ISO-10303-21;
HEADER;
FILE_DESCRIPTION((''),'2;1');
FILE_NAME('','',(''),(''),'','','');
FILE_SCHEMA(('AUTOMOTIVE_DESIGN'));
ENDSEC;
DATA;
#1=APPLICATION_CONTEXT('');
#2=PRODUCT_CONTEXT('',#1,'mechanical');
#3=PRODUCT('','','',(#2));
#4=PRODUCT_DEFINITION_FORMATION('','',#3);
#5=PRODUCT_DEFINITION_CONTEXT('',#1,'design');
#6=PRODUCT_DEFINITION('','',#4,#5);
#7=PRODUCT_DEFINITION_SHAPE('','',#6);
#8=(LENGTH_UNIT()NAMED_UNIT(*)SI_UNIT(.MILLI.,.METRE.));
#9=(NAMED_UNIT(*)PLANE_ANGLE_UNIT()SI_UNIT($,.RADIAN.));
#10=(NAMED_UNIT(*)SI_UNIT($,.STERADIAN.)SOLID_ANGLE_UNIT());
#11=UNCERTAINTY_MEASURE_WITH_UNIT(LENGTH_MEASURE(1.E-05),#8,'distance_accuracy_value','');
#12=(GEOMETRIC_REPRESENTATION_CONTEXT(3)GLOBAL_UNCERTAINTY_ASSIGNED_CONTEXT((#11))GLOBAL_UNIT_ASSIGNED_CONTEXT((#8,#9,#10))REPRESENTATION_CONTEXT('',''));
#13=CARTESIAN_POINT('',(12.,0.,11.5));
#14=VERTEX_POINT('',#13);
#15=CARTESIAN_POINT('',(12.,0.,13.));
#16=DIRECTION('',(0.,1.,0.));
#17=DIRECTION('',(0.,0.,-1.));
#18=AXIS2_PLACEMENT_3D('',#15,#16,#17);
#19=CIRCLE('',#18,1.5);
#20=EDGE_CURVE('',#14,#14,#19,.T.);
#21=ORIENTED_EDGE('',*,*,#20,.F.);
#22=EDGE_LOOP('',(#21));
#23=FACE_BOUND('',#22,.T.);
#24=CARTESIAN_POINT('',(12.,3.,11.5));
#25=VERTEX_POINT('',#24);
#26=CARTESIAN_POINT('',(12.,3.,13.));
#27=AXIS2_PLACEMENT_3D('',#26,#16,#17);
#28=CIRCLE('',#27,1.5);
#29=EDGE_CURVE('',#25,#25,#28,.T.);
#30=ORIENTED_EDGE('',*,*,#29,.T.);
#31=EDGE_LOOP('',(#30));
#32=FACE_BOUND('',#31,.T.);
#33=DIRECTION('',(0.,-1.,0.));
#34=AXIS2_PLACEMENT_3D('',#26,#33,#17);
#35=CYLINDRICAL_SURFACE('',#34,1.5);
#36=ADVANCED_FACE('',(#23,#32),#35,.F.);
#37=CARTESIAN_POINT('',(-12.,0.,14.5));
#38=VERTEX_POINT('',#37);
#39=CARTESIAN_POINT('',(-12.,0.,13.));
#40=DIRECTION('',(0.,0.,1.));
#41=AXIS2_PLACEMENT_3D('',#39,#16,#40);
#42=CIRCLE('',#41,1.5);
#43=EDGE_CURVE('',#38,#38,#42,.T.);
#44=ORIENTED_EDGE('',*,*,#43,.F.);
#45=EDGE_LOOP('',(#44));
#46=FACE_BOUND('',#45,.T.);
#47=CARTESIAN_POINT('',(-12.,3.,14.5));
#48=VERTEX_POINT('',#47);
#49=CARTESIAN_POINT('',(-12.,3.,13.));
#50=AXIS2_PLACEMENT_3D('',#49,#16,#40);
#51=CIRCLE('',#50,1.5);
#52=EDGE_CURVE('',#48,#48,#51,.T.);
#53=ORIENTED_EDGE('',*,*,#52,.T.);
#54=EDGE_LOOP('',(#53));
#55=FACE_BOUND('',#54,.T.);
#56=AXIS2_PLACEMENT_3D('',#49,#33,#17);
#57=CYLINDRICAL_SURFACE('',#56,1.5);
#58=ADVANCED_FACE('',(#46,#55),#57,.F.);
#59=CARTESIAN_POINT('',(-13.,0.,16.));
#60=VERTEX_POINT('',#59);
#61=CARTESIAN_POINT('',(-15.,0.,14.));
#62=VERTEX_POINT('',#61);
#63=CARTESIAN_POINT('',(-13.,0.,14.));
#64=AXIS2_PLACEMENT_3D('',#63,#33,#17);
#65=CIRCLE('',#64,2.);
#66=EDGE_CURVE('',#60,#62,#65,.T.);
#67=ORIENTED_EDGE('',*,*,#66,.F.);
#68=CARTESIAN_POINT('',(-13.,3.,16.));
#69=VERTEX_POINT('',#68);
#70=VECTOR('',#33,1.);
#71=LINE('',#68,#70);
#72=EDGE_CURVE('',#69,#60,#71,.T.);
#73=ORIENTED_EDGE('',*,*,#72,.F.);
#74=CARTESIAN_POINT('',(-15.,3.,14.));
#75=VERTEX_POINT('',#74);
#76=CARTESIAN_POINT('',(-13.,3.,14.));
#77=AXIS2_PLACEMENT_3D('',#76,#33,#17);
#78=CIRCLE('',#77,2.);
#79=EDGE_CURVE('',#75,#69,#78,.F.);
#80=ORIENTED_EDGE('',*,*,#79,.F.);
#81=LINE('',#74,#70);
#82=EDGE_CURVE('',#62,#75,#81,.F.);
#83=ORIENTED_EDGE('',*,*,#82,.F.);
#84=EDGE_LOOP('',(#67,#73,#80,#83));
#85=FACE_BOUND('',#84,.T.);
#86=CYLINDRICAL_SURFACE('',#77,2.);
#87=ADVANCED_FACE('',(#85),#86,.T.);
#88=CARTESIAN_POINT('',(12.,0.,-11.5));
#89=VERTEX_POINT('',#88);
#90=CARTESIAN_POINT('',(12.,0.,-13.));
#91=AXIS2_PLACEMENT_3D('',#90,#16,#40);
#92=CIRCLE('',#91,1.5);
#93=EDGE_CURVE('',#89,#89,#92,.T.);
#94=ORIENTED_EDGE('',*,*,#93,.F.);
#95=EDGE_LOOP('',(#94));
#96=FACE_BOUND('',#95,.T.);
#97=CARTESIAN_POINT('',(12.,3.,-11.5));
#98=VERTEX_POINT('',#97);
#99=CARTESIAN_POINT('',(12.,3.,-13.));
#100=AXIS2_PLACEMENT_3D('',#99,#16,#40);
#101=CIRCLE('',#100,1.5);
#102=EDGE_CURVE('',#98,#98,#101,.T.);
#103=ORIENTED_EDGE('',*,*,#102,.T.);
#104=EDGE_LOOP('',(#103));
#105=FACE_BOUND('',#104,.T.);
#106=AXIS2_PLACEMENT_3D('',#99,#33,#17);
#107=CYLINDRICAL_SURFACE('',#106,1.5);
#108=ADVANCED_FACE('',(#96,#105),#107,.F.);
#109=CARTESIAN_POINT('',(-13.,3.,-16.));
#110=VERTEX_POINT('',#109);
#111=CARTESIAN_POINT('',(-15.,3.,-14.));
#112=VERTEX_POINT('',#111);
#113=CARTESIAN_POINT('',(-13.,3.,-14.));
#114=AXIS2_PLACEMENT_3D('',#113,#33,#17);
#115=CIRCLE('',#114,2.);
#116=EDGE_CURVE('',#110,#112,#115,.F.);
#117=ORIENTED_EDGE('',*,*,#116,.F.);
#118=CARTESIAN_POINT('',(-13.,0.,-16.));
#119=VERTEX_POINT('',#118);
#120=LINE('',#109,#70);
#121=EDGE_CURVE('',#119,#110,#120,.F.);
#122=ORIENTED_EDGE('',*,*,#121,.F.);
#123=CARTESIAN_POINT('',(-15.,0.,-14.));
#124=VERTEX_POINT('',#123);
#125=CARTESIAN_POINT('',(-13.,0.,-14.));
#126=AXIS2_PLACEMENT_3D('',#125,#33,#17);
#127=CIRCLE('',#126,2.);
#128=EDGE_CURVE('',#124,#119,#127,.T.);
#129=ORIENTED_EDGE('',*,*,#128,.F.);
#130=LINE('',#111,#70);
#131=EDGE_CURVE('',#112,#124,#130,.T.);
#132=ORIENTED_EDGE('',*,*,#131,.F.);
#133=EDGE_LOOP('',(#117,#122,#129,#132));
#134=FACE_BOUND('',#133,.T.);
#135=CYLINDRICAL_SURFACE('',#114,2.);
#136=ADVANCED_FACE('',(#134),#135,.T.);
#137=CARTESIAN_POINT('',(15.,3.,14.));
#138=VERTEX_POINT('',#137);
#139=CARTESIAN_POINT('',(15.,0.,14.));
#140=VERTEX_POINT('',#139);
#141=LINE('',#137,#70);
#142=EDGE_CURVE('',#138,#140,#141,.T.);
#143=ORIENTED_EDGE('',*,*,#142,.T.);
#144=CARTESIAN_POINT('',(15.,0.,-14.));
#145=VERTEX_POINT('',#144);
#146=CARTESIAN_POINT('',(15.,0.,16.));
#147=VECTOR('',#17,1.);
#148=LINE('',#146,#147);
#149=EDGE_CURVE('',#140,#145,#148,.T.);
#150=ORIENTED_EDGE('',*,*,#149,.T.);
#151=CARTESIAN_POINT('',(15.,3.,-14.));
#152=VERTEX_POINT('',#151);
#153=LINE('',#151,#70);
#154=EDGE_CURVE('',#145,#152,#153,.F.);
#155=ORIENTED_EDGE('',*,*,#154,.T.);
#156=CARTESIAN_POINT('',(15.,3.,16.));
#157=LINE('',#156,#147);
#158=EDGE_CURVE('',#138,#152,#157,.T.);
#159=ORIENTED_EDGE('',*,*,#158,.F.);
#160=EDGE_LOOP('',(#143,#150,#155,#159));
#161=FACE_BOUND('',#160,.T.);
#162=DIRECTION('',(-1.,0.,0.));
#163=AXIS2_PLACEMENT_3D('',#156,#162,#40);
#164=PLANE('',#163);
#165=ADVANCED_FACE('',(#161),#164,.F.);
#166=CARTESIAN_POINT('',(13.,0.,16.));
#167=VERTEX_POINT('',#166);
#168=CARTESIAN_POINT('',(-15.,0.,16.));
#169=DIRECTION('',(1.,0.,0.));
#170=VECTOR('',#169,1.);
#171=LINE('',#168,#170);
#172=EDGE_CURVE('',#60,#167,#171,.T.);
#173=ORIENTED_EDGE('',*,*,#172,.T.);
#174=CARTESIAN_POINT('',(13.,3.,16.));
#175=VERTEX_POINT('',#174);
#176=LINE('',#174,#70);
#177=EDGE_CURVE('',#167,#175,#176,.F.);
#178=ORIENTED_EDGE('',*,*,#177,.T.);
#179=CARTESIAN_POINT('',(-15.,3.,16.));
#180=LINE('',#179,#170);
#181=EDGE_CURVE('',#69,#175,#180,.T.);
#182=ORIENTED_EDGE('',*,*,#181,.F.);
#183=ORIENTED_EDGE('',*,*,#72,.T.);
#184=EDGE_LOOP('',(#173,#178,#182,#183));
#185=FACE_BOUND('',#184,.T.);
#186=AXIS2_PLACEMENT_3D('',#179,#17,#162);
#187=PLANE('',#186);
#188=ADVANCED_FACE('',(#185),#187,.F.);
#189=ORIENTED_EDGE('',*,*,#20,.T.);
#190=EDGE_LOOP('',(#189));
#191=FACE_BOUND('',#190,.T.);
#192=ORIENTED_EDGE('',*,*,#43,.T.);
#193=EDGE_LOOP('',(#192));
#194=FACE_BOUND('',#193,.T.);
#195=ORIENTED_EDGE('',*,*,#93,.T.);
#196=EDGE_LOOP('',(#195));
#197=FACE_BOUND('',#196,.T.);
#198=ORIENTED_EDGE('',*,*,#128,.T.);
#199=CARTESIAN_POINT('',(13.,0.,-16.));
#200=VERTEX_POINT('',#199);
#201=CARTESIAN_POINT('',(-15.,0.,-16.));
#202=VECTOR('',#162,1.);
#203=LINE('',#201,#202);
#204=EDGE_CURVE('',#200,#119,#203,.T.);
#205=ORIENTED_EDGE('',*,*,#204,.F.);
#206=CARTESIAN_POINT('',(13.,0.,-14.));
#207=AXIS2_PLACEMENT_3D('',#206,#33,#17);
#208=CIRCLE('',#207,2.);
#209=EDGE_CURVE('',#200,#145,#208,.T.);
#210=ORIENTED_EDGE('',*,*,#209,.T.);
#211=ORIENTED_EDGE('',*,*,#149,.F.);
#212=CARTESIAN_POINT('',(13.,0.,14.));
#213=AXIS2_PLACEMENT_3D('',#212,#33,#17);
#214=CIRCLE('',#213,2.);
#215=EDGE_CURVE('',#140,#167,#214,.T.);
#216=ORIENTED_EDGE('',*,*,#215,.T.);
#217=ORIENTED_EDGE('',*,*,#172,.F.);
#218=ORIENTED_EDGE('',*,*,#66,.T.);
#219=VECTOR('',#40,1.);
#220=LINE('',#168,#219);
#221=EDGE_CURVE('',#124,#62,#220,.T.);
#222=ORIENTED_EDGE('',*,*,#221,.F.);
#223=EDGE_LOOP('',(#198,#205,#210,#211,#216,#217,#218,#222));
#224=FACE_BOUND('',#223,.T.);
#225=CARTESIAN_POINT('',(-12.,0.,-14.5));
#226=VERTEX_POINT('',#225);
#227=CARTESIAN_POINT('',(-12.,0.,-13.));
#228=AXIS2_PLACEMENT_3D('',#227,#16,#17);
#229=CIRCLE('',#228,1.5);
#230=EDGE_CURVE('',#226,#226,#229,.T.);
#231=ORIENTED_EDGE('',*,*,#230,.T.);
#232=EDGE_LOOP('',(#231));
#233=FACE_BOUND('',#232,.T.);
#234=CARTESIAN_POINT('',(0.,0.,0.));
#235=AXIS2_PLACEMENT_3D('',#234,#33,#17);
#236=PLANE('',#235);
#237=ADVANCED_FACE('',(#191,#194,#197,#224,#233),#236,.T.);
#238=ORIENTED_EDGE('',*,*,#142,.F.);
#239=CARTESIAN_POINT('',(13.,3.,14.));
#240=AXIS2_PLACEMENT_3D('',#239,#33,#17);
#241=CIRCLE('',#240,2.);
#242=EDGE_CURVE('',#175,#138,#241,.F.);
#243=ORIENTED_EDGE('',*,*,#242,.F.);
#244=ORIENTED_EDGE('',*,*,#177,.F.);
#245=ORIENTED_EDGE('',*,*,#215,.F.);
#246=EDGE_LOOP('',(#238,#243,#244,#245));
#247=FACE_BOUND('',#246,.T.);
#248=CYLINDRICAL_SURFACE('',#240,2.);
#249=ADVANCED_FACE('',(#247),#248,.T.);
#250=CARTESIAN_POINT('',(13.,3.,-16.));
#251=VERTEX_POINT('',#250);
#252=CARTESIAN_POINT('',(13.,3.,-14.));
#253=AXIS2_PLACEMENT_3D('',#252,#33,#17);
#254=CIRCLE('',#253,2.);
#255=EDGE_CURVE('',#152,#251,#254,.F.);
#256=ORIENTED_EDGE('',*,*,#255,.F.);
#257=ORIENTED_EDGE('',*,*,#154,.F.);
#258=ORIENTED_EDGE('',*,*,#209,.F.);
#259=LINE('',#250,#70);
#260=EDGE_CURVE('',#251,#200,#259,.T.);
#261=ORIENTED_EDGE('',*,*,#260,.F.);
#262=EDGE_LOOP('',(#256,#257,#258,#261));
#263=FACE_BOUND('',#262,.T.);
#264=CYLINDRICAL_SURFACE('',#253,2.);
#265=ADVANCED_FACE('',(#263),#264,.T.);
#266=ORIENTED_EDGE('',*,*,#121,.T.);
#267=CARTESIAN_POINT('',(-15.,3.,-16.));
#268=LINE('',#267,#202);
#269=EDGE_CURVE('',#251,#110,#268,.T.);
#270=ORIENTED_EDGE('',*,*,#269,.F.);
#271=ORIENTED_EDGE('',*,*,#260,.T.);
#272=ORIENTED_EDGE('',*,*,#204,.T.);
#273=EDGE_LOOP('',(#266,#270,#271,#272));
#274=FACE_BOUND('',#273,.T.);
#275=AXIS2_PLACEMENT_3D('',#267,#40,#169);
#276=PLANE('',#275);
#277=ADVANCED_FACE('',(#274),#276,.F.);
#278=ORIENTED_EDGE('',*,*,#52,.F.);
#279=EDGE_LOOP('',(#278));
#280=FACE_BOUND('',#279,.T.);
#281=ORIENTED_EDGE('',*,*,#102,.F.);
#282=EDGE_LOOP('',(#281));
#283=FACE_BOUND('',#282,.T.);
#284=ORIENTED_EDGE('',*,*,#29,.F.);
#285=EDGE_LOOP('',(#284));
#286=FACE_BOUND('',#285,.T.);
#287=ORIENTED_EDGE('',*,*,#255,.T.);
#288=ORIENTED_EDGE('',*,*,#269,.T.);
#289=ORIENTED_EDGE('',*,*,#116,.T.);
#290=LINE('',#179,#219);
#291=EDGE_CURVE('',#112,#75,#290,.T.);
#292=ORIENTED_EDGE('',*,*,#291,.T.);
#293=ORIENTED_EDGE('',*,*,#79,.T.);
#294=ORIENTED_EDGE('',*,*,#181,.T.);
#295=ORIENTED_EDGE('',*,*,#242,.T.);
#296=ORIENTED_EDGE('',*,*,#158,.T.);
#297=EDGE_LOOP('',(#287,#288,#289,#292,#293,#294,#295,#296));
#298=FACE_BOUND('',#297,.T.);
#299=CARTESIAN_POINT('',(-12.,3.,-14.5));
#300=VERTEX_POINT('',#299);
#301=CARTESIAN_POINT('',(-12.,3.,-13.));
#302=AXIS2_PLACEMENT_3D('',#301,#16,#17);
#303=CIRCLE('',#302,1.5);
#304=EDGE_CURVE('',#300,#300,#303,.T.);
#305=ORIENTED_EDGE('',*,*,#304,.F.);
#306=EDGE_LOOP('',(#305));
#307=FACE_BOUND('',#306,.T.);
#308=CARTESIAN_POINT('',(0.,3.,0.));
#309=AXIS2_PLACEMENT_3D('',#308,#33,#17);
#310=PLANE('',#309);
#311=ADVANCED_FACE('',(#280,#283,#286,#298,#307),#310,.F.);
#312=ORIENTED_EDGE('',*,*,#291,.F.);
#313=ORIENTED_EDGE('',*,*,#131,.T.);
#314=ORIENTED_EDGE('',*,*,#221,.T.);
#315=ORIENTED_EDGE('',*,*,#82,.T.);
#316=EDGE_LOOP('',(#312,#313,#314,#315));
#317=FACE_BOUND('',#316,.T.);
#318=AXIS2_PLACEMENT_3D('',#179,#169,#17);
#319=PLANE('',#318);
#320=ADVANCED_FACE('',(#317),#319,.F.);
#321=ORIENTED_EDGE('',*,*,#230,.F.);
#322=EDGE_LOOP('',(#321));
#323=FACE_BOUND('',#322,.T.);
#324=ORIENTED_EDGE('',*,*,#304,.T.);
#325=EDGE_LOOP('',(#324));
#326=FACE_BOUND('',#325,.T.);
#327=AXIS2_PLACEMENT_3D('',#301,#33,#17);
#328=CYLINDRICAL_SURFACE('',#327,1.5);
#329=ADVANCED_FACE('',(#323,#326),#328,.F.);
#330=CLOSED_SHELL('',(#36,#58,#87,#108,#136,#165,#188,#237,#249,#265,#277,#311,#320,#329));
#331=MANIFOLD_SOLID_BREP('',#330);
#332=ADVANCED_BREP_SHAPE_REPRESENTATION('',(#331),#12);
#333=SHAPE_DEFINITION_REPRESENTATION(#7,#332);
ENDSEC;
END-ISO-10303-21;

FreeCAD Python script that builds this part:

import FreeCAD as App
import Part
import Sketcher

V = App.Vector
Q = App.Units.Quantity


def edges_at(feature, points):
    """Names of the edges that pass closest to the given points."""
    edges = feature.Shape.Edges
    near = lambda p: min(range(len(edges)), key=lambda i: edges[i].distToShape(Part.Vertex(*p))[0])
    return sorted({f"Edge{near(p) + 1}" for p in points})

doc = App.newDocument("Part")
params = doc.addObject("Spreadsheet::Sheet", "Params")
for row, (alias, value) in enumerate([
    ("sketch1_diameter", "3 mm"),
    ("sketch1_width", "30 mm"),
    ("sketch1_height", "32 mm"),
    ("pad1_length", "3 mm"),
    ("fillet_radius", "2 mm"),
], start=1):
    params.set(f"A{row}", alias)
    params.set(f"B{row}", "=" + value)
    params.setAlias(f"B{row}", alias)

body = doc.addObject("PartDesign::Body", "Body")

# Sketch on XZ plane
sketch1 = body.newObject("Sketcher::SketchObject", "Sketch")
sketch1.AttachmentSupport = (doc.getObject("XZ_Plane"), [""])
sketch1.MapMode = "FlatFace"
sketch1.addGeometry([
    Part.LineSegment(V(-15, -16, 0), V(-15, 16, 0)),  # 0
    Part.LineSegment(V(-15, 16, 0), V(15, 16, 0)),  # 1
    Part.LineSegment(V(15, 16, 0), V(15, -16, 0)),  # 2
    Part.LineSegment(V(15, -16, 0), V(-15, -16, 0)),  # 3
    Part.Circle(V(-12, 13, 0), V(0, 0, 1), 1.5),  # 4
    Part.Circle(V(12, 13, 0), V(0, 0, 1), 1.5),  # 5
    Part.Circle(V(-12, -13, 0), V(0, 0, 1), 1.5),  # 6
    Part.Circle(V(12, -13, 0), V(0, 0, 1), 1.5),  # 7
], False)
sketch1.addConstraint([
    Sketcher.Constraint("Coincident", 0, 2, 1, 1),
    Sketcher.Constraint("Coincident", 1, 2, 2, 1),
    Sketcher.Constraint("Coincident", 2, 2, 3, 1),
    Sketcher.Constraint("Coincident", 3, 2, 0, 1),
    Sketcher.Constraint("Vertical", 0),
    Sketcher.Constraint("Horizontal", 1),
    Sketcher.Constraint("Vertical", 2),
    Sketcher.Constraint("Horizontal", 3),
    Sketcher.Constraint("Equal", 4, 5),
    Sketcher.Constraint("Equal", 5, 6),
    Sketcher.Constraint("Equal", 6, 7),
    Sketcher.Constraint("Symmetric", 5, 3, 6, 3, -1, 1),
    Sketcher.Constraint("Symmetric", 4, 3, 7, 3, -1, 1),
    Sketcher.Constraint("Symmetric", 0, 2, 2, 2, -1, 1),
    Sketcher.Constraint("Symmetric", 4, 3, 5, 3, -2),
    Sketcher.Constraint("Diameter", 4, Q("3 mm")),
    Sketcher.Constraint("DistanceX", 1, 1, 1, 2, Q("30 mm")),
    Sketcher.Constraint("DistanceY", 0, 1, 0, 2, Q("32 mm")),
    Sketcher.Constraint("DistanceX", 4, 3, -1, 1, Q("12 mm")),
    Sketcher.Constraint("DistanceY", -1, 1, 4, 3, Q("13 mm")),
])
sketch1.setExpression("Constraints[15]", "Params.sketch1_diameter")
sketch1.setExpression("Constraints[16]", "Params.sketch1_width")
sketch1.setExpression("Constraints[17]", "Params.sketch1_height")
pad1 = body.newObject("PartDesign::Pad", "Pad")
pad1.Profile = sketch1
pad1.setExpression("Length", "Params.pad1_length")
pad1.Reversed = True
doc.recompute()

fillet = body.newObject("PartDesign::Fillet", "Fillet")
fillet.Base = (pad1, edges_at(pad1, [
    (15, 1.5, 16),
    (-15, 1.5, 16),
    (-15, 1.5, -16),
    (15, 1.5, -16),
]))
fillet.setExpression("Radius", "Params.fillet_radius")

doc.recompute()
